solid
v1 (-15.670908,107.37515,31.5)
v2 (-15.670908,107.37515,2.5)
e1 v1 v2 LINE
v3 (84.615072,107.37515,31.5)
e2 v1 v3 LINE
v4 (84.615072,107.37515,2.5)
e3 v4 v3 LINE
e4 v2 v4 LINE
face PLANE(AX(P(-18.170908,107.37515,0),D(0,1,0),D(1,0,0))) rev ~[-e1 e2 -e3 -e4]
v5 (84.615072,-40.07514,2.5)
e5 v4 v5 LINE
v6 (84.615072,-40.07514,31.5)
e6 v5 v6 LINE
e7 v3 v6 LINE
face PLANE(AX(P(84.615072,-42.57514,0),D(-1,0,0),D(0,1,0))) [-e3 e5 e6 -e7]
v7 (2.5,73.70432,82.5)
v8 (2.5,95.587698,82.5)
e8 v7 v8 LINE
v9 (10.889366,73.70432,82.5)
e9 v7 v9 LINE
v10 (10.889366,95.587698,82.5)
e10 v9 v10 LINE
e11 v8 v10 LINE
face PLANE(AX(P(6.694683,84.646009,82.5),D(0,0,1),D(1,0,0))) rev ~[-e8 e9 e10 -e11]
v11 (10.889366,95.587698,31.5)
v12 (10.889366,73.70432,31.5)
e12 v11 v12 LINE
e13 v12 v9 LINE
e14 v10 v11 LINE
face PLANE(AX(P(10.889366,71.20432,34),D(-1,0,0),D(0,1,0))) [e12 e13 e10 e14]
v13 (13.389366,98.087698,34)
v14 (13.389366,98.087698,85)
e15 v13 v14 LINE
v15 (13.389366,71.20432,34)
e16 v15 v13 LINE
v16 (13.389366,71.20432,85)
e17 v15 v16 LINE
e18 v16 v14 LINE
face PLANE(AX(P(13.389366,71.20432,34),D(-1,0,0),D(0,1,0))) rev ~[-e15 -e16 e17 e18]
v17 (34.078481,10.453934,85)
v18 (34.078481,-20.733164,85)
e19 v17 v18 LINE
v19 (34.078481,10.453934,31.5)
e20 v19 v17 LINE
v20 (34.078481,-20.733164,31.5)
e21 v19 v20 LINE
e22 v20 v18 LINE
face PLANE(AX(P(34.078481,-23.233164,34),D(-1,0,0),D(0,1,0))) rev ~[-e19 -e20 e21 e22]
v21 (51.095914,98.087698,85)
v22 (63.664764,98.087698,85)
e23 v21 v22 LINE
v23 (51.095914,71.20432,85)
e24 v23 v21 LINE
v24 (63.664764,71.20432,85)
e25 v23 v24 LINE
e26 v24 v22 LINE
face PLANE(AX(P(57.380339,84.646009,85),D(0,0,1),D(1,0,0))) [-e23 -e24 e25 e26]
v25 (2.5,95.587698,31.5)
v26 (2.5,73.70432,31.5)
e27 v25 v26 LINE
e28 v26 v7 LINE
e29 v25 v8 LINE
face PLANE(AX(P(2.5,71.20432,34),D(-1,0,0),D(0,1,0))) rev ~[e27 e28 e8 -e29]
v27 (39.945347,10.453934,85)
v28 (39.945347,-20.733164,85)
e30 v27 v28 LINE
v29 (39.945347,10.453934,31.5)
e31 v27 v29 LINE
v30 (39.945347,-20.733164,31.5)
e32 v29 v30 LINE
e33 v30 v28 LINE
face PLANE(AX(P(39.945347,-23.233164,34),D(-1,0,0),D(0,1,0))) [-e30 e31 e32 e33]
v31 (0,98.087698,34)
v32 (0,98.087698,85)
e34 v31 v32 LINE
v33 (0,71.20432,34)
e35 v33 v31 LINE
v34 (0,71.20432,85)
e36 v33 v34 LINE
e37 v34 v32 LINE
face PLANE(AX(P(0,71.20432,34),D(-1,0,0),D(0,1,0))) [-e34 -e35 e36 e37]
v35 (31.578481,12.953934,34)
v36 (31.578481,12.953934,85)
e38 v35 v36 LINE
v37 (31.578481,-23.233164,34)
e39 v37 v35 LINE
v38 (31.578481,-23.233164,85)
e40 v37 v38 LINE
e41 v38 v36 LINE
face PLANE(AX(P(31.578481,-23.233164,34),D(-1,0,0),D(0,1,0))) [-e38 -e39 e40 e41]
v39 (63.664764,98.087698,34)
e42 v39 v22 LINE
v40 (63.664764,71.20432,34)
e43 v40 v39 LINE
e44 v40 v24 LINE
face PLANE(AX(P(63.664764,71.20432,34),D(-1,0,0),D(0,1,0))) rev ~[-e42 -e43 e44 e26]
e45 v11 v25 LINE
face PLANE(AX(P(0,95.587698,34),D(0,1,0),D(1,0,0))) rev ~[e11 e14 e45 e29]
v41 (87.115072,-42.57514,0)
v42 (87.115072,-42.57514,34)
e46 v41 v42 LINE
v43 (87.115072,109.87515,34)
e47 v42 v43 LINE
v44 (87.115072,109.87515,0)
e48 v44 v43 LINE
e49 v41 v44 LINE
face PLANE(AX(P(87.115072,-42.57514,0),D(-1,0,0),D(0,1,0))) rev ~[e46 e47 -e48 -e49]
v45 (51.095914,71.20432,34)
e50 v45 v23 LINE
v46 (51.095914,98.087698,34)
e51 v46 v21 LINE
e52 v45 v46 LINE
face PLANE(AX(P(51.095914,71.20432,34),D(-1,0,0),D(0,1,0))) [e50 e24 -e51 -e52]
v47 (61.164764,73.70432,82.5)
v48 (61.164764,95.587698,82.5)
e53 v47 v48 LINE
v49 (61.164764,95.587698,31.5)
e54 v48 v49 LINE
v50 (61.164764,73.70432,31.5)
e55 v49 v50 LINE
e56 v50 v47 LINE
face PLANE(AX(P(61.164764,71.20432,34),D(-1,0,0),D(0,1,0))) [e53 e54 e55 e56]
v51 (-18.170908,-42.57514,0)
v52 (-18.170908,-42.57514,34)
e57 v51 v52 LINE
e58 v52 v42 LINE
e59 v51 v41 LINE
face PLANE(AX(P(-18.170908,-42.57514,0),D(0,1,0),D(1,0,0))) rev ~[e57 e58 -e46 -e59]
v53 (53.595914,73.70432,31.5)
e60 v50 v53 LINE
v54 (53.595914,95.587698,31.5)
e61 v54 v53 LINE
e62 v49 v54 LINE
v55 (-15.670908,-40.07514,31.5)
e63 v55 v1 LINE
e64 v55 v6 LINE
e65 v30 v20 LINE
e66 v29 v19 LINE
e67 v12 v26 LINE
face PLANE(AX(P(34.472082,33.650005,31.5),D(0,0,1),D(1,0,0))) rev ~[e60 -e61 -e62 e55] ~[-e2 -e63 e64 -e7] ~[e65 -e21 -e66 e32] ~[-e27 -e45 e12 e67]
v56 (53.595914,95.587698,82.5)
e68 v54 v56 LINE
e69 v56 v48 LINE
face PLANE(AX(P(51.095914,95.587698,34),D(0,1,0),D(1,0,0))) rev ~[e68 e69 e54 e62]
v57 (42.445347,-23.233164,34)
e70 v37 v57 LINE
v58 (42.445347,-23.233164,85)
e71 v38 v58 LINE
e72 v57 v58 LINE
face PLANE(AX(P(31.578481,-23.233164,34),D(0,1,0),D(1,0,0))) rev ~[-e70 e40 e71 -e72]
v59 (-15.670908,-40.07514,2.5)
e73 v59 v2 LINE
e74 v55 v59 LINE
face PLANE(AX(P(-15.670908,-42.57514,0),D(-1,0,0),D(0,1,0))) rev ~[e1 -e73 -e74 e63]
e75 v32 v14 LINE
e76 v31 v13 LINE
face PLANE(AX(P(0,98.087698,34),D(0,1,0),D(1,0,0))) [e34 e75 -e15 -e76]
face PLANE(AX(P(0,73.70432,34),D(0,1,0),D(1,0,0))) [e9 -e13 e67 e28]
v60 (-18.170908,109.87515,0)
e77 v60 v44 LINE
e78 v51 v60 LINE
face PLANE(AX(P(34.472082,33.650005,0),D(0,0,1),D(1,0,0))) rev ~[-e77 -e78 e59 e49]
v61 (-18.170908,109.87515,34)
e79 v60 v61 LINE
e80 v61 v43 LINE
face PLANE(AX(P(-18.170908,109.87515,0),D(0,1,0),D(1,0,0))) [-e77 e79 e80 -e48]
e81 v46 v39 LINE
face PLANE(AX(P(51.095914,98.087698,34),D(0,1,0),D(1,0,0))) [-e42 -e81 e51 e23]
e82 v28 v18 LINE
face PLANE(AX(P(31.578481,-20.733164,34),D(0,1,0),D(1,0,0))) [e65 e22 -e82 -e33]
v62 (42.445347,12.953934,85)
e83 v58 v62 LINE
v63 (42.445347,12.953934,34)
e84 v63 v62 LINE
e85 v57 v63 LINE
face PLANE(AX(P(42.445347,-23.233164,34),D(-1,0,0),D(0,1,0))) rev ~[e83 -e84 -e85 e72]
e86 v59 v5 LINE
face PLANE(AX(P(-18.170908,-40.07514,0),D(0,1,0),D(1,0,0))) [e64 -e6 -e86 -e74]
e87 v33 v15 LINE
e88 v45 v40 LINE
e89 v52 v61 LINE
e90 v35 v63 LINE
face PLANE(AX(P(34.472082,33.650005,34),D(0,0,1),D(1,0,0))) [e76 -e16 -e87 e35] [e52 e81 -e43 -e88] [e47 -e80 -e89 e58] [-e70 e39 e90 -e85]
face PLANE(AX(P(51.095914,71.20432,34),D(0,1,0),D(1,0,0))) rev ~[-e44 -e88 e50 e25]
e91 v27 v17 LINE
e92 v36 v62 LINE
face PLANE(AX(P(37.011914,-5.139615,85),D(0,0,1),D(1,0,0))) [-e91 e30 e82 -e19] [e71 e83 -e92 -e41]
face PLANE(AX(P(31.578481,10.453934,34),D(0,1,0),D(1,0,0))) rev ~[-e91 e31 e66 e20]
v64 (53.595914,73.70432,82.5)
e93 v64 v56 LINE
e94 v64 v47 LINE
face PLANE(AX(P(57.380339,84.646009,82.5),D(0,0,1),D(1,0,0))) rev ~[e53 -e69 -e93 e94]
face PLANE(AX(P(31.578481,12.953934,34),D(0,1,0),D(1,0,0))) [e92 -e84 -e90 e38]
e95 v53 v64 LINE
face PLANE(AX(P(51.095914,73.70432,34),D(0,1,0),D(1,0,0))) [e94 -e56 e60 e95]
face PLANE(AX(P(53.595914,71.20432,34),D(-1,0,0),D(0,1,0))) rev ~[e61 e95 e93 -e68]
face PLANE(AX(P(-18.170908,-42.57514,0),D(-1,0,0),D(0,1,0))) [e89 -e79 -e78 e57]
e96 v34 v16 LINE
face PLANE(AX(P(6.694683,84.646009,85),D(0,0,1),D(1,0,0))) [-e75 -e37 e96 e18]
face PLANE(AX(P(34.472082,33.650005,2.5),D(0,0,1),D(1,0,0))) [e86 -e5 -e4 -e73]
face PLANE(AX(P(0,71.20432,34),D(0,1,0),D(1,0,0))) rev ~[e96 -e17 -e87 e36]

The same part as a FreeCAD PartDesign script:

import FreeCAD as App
import Part
import Sketcher
from FreeCAD import Vector
Q = App.Units.Quantity


def faces_at(feature, points):
    """Names of the faces that lie closest to the given points."""
    faces = feature.Shape.Faces
    near = lambda p: min(range(len(faces)), key=lambda i: faces[i].distToShape(Part.Vertex(*p))[0])
    return sorted({f"Face{near(p) + 1}" for p in points})


def add_polygon(sketch, points):
    """Adds a closed chain of lines whose ends are joined by coincident constraints."""
    first, n = sketch.GeometryCount, len(points)
    for a, b in zip(points, points[1:] + points[:1]):
        sketch.addGeometry(Part.LineSegment(App.Vector(*a, 0), App.Vector(*b, 0)), False)
    for i in range(n):
        sketch.addConstraint(Sketcher.Constraint("Coincident", first + i, 2, first + (i + 1) % n, 1))

doc = App.newDocument("Part")
body = doc.addObject("PartDesign::Body", "Body")

sketch1 = body.newObject("Sketcher::SketchObject", "Sketch")
sketch1.AttachmentSupport = (doc.getObject("XY_Plane"), [""])
sketch1.MapMode = "FlatFace"
add_polygon(sketch1, [(-18, 110), (-18, -43), (87, -43), (87, 110)])
sketch1.addConstraint([
    Sketcher.Constraint("Vertical", 0),
    Sketcher.Constraint("Horizontal", 1),
    Sketcher.Constraint("Vertical", 2),
    Sketcher.Constraint("Horizontal", 3),
    Sketcher.Constraint("DistanceX", 1, 1, 1, 2, Q("105.28598 mm")),
    Sketcher.Constraint("DistanceY", 0, 2, 0, 1, Q("152.45029 mm")),
    Sketcher.Constraint("DistanceX", 0, 2, -1, 1, Q("18.170908 mm")),
    Sketcher.Constraint("DistanceY", 0, 2, -1, 1, Q("42.57514 mm")),
])
pad1 = body.newObject("PartDesign::Pad", "Pad")
pad1.Profile = sketch1
pad1.Length = 34

sketch2 = body.newObject("Sketcher::SketchObject", "Sketch001")
sketch2.AttachmentSupport = (doc.getObject("XY_Plane"), [""])
sketch2.MapMode = "FlatFace"
sketch2.AttachmentOffset = App.Placement(Vector(0, 0, 34), App.Rotation())
add_polygon(sketch2, [(0, 98), (0, 71), (13, 71), (13, 98)])
add_polygon(sketch2, [(51, 98), (51, 71), (64, 71), (64, 98)])
add_polygon(sketch2, [(32, 13), (32, -23), (42, -23), (42, 13)])
sketch2.addConstraint([
    Sketcher.Constraint("Vertical", 0),
    Sketcher.Constraint("Horizontal", 1),
    Sketcher.Constraint("Vertical", 2),
    Sketcher.Constraint("Horizontal", 3),
    Sketcher.Constraint("Vertical", 4),
    Sketcher.Constraint("Horizontal", 5),
    Sketcher.Constraint("Vertical", 6),
    Sketcher.Constraint("Horizontal", 7),
    Sketcher.Constraint("Vertical", 8),
    Sketcher.Constraint("Horizontal", 9),
    Sketcher.Constraint("Vertical", 10),
    Sketcher.Constraint("Horizontal", 11),
    Sketcher.Constraint("PointOnObject", 0, 2, -2),
    Sketcher.Constraint("Horizontal", 1, 2, 4, 2),
    Sketcher.Constraint("Horizontal", 3, 2, 6, 2),
    Sketcher.Constraint("DistanceY", 8, 2, 8, 1, Q("36.187098 mm")),
    Sketcher.Constraint("DistanceX", 5, 1, 5, 2, Q("12.56885 mm")),
    Sketcher.Constraint("DistanceY", 0, 2, 0, 1, Q("26.883379 mm")),
    Sketcher.Constraint("DistanceY", -1, 1, 2, 2, Q("98.087698 mm")),
    Sketcher.Constraint("DistanceX", 1, 2, 5, 2, Q("50.275398 mm")),
    Sketcher.Constraint("DistanceX", 1, 1, 1, 2, Q("13.389366 mm")),
    Sketcher.Constraint("DistanceX", 9, 1, 9, 2, Q("10.866866 mm")),
    Sketcher.Constraint("DistanceX", -1, 1, 8, 2, Q("31.578481 mm")),
    Sketcher.Constraint("DistanceY", 8, 2, -1, 1, Q("23.233164 mm")),
])
pad2 = body.newObject("PartDesign::Pad", "Pad001")
pad2.Profile = sketch2
pad2.Length = 51
doc.recompute()

thickness = body.newObject("PartDesign::Thickness", "Thickness")
thickness.Base = (pad2, faces_at(pad2, [(37.012, -5.14, 85)]))
thickness.Value = 2.5
thickness.Reversed = True
thickness.Join = "Intersection"

doc.recompute()
